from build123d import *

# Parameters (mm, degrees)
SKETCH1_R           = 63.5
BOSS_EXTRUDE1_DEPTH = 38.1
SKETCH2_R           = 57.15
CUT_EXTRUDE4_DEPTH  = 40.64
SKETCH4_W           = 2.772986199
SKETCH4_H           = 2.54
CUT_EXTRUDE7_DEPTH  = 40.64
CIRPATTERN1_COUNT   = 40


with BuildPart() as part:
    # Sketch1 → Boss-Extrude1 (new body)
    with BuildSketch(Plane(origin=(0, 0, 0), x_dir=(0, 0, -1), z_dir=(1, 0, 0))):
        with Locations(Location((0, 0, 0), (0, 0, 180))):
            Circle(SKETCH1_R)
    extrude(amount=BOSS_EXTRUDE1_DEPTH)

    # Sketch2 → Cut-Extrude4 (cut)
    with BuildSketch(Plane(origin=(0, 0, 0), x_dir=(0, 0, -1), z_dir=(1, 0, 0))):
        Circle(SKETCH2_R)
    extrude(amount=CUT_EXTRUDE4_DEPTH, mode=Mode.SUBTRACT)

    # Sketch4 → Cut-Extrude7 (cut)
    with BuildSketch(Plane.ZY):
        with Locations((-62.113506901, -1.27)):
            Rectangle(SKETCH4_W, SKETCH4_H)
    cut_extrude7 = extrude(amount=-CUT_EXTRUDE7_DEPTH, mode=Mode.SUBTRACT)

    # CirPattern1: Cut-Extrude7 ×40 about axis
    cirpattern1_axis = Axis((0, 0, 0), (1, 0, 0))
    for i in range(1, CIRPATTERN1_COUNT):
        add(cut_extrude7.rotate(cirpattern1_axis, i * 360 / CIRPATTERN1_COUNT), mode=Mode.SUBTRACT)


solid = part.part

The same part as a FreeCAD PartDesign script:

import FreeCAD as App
import Part
import Sketcher

V = App.Vector
Q = App.Units.Quantity

doc = App.newDocument("Part")
params = doc.addObject("Spreadsheet::Sheet", "Params")
for row, (alias, value) in enumerate([
    ("sketch1_diameter", "5 in"),
    ("pad1_length", "1.5 in"),
    ("sketch2_diameter", "4.5 in"),
    ("pocket1_length", "1.6 in"),
    ("sketch3_width", "0.1 in"),
    ("pocket2_length", "1.6 in"),
], start=1):
    params.set(f"A{row}", alias)
    params.set(f"B{row}", "=" + value)
    params.setAlias(f"B{row}", alias)

body = doc.addObject("PartDesign::Body", "Body")

# Sketch on YZ plane
sketch1 = body.newObject("Sketcher::SketchObject", "Sketch")
sketch1.AttachmentSupport = (doc.getObject("YZ_Plane"), [""])
sketch1.MapMode = "FlatFace"
sketch1.addGeometry(Part.Circle(V(0, 0, 0), V(0, 0, 1), 64), False)
sketch1.addConstraint([
    Sketcher.Constraint("Coincident", 0, 3, -1, 1),
    Sketcher.Constraint("Diameter", 0, Q("5 in")),
])
sketch1.setExpression("Constraints[1]", "Params.sketch1_diameter")
pad1 = body.newObject("PartDesign::Pad", "Pad")
pad1.Profile = sketch1
pad1.setExpression("Length", "Params.pad1_length")

# Sketch on YZ plane
sketch2 = body.newObject("Sketcher::SketchObject", "Sketch001")
sketch2.AttachmentSupport = (doc.getObject("YZ_Plane"), [""])
sketch2.MapMode = "FlatFace"
sketch2.addGeometry(Part.Circle(V(0, 0, 0), V(0, 0, 1), 57), False)
sketch2.addConstraint([
    Sketcher.Constraint("Coincident", 0, 3, -1, 1),
    Sketcher.Constraint("Diameter", 0, Q("4.5 in")),
])
sketch2.setExpression("Constraints[1]", "Params.sketch2_diameter")
pocket1 = body.newObject("PartDesign::Pocket", "Pocket")
pocket1.Profile = sketch2
pocket1.setExpression("Length", "Params.pocket1_length")
pocket1.Reversed = True

# Sketch on YZ plane
sketch3 = body.newObject("Sketcher::SketchObject", "Sketch002")
sketch3.AttachmentSupport = (doc.getObject("YZ_Plane"), [""])
sketch3.MapMode = "FlatFace"
sketch3.addGeometry([
    Part.LineSegment(V(0, -63.5, 0), V(-2.5, -63.5, 0)),
    Part.LineSegment(V(-2.5, -63.5, 0), V(-2.5, -60.7, 0)),
    Part.LineSegment(V(-2.5, -60.7, 0), V(0, -60.7, 0)),
    Part.LineSegment(V(0, -60.7, 0), V(0, -63.5, 0)),
], False)
sketch3.addConstraint([
    Sketcher.Constraint("Coincident", 0, 2, 1, 1),
    Sketcher.Constraint("Coincident", 1, 2, 2, 1),
    Sketcher.Constraint("Coincident", 2, 2, 3, 1),
    Sketcher.Constraint("Coincident", 3, 2, 0, 1),
    Sketcher.Constraint("Horizontal", 0),
    Sketcher.Constraint("Vertical", 1),
    Sketcher.Constraint("Horizontal", 2),
    Sketcher.Constraint("Vertical", 3),
    Sketcher.Constraint("PointOnObject", 2, 2, -2),
    Sketcher.Constraint("DistanceX", 0, 2, 0, 1, Q("0.1 in")),
    Sketcher.Constraint("DistanceY", 0, 2, -1, 1, Q("2.5 in")),
    Sketcher.Constraint("DistanceY", 1, 1, 1, 2, 2.772986),
])
sketch3.setExpression("Constraints[9]", "Params.sketch3_width")
pocket2 = body.newObject("PartDesign::Pocket", "Pocket001")
pocket2.Profile = sketch3
pocket2.setExpression("Length", "Params.pocket2_length")
pocket2.Reversed = True
doc.recompute()

polarpattern = body.newObject("PartDesign::PolarPattern", "PolarPattern")
polarpattern.Originals = [pocket2]
polarpattern.Axis = (doc.getObject("X_Axis"), [""])
polarpattern.Angle = 360
polarpattern.Occurrences = 40
body.Tip = polarpattern

doc.recompute()
